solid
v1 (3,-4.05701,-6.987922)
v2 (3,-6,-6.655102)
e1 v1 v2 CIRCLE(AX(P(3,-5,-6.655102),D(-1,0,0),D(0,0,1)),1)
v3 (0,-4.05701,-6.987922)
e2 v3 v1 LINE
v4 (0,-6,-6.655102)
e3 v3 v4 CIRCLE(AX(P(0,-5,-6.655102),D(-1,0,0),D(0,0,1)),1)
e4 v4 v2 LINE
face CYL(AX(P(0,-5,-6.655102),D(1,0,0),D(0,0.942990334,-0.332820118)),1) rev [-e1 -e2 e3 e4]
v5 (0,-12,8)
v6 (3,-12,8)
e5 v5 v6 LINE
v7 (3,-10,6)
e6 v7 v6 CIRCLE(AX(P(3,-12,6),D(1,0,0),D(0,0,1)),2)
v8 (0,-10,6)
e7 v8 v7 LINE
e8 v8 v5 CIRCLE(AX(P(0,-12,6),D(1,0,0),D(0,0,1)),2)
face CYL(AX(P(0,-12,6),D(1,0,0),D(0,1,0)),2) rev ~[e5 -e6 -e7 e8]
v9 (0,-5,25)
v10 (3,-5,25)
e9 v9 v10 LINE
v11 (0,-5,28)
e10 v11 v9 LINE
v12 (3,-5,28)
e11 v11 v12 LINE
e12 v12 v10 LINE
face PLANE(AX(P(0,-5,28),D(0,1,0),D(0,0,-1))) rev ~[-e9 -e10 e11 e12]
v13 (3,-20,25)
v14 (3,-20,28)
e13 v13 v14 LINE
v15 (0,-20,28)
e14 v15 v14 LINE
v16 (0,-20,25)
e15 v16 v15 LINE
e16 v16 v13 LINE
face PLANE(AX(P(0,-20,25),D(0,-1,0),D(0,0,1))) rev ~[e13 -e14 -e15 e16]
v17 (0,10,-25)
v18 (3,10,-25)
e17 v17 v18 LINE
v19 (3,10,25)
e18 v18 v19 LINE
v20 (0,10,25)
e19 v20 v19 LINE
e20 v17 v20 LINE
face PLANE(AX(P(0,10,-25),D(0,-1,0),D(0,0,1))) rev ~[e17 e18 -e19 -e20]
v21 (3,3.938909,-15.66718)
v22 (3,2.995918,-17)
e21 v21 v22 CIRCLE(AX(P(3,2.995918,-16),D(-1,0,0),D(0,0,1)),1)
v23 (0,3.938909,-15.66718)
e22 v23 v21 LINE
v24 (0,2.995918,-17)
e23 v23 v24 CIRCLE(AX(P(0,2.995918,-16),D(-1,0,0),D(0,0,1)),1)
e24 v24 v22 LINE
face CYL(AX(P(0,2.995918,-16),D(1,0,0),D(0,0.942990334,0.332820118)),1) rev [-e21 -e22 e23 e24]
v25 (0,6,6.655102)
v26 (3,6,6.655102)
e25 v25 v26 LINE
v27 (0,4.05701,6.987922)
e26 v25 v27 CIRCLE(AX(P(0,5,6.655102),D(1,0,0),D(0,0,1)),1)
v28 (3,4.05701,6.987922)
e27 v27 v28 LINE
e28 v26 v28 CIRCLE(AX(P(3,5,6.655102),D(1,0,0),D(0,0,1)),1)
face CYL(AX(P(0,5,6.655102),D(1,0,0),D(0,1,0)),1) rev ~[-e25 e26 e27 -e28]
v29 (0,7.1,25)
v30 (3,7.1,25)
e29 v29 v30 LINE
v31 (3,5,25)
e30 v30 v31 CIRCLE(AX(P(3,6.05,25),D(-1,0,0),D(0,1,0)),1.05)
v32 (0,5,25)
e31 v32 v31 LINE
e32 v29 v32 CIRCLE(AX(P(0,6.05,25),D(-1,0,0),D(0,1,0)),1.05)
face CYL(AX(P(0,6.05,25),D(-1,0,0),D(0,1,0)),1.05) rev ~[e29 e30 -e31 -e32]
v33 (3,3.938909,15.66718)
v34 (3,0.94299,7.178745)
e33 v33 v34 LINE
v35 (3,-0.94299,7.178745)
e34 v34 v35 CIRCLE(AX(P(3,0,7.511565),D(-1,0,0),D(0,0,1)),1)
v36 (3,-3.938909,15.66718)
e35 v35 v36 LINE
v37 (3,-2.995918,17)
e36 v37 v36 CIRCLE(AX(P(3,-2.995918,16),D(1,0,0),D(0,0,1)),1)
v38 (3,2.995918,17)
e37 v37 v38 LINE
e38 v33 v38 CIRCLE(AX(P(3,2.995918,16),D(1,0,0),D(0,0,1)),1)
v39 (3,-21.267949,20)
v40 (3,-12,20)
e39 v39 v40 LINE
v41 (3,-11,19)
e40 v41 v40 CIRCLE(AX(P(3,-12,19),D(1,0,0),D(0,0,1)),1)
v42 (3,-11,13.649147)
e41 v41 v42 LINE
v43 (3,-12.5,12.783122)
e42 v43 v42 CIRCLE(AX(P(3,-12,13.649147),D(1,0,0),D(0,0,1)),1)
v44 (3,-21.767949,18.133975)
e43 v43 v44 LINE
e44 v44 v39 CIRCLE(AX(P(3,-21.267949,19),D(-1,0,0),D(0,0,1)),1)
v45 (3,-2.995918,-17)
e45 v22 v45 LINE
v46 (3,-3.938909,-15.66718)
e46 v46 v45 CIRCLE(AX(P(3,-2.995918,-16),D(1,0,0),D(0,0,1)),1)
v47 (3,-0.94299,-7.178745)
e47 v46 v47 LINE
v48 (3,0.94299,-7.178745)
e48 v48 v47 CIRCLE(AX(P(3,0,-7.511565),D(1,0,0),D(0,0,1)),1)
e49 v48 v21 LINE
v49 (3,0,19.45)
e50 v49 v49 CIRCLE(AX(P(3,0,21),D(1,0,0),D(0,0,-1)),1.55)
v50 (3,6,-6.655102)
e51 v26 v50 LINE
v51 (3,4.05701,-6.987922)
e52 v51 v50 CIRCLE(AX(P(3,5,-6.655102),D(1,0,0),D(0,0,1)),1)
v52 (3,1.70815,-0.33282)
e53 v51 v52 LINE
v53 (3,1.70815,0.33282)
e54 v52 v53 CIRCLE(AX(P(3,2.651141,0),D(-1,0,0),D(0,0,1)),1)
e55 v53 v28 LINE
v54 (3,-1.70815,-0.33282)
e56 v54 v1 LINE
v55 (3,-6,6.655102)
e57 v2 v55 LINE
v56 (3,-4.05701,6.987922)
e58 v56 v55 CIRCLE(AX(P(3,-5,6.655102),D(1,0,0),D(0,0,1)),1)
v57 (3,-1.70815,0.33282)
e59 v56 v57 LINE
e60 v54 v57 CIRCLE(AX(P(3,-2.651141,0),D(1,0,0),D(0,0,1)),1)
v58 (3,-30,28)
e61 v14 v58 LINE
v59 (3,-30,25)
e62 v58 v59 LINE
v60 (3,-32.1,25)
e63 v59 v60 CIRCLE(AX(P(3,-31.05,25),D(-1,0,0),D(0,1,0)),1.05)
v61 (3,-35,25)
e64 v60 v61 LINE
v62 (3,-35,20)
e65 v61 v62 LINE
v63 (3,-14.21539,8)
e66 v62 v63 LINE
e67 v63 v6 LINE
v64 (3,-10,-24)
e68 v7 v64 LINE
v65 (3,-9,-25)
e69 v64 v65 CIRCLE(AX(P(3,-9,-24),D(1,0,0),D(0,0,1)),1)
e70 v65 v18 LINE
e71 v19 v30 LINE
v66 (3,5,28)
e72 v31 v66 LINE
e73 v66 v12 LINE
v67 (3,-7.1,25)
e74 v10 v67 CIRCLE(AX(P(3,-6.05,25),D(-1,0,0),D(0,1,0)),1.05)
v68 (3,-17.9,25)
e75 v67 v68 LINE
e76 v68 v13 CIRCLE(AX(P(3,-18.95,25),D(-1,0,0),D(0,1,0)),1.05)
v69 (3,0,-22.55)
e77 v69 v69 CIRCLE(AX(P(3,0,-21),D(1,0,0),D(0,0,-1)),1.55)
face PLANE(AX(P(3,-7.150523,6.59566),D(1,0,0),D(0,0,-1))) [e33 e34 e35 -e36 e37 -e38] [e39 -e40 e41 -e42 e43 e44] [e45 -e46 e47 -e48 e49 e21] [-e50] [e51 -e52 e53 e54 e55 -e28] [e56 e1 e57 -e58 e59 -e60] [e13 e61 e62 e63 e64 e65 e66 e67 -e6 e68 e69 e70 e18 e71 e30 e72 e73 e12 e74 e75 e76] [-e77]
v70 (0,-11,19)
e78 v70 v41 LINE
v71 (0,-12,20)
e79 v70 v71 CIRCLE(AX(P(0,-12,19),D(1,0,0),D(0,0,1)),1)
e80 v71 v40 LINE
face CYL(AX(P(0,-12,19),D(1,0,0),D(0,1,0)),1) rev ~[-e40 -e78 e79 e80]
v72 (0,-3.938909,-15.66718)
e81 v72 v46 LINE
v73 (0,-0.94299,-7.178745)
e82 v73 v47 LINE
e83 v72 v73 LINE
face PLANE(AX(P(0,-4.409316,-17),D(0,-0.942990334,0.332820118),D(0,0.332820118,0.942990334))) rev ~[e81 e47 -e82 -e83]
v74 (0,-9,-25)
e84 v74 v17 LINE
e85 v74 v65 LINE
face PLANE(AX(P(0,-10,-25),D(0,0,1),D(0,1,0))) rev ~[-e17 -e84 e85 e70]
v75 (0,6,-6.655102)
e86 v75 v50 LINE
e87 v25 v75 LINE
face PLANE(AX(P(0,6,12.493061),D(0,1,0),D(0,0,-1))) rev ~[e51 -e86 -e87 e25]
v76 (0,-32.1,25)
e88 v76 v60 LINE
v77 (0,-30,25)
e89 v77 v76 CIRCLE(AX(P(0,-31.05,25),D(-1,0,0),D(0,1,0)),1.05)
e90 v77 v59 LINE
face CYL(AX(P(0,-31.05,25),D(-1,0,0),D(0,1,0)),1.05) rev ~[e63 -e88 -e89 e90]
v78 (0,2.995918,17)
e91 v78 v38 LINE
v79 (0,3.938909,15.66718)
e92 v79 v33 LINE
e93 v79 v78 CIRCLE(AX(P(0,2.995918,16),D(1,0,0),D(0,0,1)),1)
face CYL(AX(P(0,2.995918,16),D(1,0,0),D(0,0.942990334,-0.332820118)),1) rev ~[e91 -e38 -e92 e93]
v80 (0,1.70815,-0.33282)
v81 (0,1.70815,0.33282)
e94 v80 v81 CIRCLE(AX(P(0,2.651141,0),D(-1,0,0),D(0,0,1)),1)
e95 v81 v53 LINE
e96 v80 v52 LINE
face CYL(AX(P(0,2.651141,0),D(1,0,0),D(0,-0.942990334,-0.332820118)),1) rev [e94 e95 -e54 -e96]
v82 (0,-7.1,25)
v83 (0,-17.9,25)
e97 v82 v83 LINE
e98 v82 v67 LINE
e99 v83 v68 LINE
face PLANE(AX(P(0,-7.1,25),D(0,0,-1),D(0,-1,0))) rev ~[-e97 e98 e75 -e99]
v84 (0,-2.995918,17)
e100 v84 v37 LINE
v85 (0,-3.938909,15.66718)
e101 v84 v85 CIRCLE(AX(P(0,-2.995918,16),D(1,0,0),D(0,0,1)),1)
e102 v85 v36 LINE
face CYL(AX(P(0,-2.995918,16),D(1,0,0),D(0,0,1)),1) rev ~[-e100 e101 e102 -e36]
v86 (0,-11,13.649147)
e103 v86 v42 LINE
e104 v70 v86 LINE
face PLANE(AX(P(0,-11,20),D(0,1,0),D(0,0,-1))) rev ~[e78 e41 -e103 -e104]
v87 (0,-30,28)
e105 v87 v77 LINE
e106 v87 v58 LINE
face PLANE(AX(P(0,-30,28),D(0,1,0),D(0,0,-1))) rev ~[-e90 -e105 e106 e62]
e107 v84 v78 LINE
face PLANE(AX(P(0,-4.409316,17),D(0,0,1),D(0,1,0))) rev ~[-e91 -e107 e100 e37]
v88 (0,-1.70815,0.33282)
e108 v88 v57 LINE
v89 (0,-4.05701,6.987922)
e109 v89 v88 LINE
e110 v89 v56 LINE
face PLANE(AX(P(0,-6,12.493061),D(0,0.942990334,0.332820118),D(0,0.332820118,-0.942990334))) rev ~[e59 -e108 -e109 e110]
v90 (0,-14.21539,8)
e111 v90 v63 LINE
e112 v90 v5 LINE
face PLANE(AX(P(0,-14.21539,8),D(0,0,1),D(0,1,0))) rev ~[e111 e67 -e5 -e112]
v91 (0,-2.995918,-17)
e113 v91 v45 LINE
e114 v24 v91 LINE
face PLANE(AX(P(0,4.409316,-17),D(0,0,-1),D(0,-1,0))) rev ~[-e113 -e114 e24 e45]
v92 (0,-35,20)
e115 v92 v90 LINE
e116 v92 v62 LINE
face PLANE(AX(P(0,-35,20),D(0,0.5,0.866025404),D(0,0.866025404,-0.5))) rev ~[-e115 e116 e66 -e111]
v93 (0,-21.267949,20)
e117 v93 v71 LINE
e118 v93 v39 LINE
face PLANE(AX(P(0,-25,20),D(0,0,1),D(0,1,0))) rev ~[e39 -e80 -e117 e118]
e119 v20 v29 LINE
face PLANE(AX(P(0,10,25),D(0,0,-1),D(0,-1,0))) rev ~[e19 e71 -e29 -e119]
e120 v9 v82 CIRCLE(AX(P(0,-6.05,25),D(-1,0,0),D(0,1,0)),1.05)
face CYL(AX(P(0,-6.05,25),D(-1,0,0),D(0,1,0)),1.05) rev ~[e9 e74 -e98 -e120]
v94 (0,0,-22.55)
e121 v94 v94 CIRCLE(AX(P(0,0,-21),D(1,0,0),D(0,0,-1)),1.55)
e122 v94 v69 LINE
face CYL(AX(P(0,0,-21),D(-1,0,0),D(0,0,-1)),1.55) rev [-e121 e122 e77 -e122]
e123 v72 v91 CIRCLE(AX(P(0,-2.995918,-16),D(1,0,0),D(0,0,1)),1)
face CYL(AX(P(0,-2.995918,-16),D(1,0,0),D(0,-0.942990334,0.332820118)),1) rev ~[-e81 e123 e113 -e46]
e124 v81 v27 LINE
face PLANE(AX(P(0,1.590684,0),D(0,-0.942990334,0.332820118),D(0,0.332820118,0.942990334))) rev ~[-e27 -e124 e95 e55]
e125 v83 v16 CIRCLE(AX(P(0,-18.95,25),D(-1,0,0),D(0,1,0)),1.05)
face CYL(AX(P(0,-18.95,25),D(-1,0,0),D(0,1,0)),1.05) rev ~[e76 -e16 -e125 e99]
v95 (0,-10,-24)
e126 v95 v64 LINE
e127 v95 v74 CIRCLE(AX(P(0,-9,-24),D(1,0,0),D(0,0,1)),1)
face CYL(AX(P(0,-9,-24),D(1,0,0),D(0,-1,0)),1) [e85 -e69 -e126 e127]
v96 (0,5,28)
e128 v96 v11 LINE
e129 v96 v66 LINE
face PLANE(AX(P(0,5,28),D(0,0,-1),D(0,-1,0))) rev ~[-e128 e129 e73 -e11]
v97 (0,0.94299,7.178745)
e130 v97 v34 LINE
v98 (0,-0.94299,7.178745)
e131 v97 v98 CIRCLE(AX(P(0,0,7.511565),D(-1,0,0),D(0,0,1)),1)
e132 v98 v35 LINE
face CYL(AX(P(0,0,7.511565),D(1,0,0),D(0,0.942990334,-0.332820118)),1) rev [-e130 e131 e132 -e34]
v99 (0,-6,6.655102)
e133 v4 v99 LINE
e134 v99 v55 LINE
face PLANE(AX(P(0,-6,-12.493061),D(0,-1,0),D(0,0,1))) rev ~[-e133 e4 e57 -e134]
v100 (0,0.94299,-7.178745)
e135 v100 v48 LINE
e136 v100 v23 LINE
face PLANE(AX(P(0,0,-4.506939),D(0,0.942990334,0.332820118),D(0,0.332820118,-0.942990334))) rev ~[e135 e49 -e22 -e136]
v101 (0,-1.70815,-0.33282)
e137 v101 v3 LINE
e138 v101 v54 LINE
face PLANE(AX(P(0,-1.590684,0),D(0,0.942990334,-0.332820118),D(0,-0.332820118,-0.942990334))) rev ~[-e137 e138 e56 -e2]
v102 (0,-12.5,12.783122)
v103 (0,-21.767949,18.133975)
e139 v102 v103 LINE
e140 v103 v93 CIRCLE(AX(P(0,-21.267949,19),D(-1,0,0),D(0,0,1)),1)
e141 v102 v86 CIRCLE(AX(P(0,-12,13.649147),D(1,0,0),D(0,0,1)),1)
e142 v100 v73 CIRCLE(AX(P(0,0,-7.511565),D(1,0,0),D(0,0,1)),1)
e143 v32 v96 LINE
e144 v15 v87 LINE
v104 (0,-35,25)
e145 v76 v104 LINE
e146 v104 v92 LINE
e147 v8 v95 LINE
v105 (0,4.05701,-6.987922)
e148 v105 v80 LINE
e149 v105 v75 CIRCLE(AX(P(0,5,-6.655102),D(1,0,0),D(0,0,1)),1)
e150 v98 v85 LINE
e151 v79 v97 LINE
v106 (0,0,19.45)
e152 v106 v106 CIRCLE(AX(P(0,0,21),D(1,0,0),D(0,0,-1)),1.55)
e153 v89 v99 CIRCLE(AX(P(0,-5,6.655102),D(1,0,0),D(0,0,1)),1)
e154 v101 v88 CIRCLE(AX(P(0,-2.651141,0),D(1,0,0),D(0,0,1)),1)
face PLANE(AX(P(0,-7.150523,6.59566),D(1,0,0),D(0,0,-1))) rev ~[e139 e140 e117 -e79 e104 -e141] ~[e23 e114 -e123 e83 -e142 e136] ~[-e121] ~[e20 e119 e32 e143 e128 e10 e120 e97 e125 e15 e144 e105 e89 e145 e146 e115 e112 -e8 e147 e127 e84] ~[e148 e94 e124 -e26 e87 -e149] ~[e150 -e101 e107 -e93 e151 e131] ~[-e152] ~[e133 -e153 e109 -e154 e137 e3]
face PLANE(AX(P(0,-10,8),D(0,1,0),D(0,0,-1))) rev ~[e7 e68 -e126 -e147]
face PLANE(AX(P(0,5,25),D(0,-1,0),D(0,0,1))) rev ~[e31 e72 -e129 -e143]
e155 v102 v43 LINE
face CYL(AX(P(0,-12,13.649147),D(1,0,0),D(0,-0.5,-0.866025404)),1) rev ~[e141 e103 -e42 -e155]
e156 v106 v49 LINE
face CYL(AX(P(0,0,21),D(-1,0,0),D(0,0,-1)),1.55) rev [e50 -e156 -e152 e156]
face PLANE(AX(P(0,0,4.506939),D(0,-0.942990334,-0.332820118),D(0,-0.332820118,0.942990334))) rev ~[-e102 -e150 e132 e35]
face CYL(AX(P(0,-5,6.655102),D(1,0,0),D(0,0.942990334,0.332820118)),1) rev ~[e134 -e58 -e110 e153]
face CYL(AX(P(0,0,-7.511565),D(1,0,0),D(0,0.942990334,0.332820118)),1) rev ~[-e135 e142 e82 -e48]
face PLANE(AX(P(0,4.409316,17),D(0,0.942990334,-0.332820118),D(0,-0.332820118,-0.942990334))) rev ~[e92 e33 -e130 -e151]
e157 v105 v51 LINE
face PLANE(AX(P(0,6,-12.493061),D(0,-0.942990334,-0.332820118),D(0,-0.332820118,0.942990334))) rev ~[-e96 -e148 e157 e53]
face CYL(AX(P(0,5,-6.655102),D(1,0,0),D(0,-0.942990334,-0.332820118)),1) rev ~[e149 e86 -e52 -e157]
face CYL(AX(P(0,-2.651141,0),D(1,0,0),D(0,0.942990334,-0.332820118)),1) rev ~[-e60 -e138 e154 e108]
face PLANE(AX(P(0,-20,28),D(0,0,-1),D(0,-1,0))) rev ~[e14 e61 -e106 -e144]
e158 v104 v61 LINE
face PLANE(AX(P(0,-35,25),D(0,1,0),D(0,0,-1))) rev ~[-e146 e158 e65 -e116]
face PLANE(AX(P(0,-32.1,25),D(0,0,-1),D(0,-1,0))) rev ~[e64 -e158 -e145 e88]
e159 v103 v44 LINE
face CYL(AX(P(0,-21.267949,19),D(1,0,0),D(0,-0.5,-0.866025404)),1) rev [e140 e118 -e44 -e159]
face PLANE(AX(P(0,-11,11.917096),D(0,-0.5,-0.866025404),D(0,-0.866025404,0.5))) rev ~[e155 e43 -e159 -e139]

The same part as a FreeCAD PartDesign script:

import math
import FreeCAD as App
import Part
import Sketcher
from FreeCAD import Vector
Q = App.Units.Quantity


def edges_at(feature, points):
    """Names of the edges that pass closest to the given points."""
    edges = feature.Shape.Edges
    near = lambda p: min(range(len(edges)), key=lambda i: edges[i].distToShape(Part.Vertex(*p))[0])
    return sorted({f"Edge{near(p) + 1}" for p in points})


def add_polygon(sketch, points):
    """Adds a closed chain of lines whose ends are joined by coincident constraints."""
    first, n = sketch.GeometryCount, len(points)
    for a, b in zip(points, points[1:] + points[:1]):
        sketch.addGeometry(Part.LineSegment(App.Vector(*a, 0), App.Vector(*b, 0)), False)
    for i in range(n):
        sketch.addConstraint(Sketcher.Constraint("Coincident", first + i, 2, first + (i + 1) % n, 1))

doc = App.newDocument("Part")
body = doc.addObject("PartDesign::Body", "Body")

# Sketch on YZ plane
sketch1 = body.newObject("Sketcher::SketchObject", "Sketch")
sketch1.AttachmentSupport = (doc.getObject("YZ_Plane"), [""])
sketch1.MapMode = "FlatFace"
sketch1.addGeometry(Part.LineSegment(Vector(-10, 8, 0), Vector(-10, -25, 0)), False)  # 0
sketch1.addGeometry(Part.LineSegment(Vector(-10, -25, 0), Vector(10, -25, 0)), False)  # 1
sketch1.addGeometry(Part.LineSegment(Vector(10, -25, 0), Vector(10, 25, 0)), False)  # 2
sketch1.addGeometry(Part.LineSegment(Vector(10, 25, 0), Vector(7.1, 25, 0)), False)  # 3
sketch1.addGeometry(Part.ArcOfCircle(Part.Circle(Vector(6.05, 25, 0), Vector(0, 0, 1), 1.05), math.radians(180), math.radians(360)), False)  # 4
sketch1.addGeometry(Part.LineSegment(Vector(5, 25, 0), Vector(5, 28, 0)), False)  # 5
sketch1.addGeometry(Part.LineSegment(Vector(5, 28, 0), Vector(-5, 28, 0)), False)  # 6
sketch1.addGeometry(Part.LineSegment(Vector(-5, 28, 0), Vector(-5, 25, 0)), False)  # 7
sketch1.addGeometry(Part.ArcOfCircle(Part.Circle(Vector(-6.05, 25, 0), Vector(0, 0, 1), 1.05), math.radians(180), math.radians(360)), False)  # 8
sketch1.addGeometry(Part.LineSegment(Vector(-7.1, 25, 0), Vector(-17.9, 25, 0)), False)  # 9
sketch1.addGeometry(Part.ArcOfCircle(Part.Circle(Vector(-18.95, 25, 0), Vector(0, 0, 1), 1.05), math.radians(180), math.radians(360)), False)  # 10
sketch1.addGeometry(Part.LineSegment(Vector(-20, 25, 0), Vector(-20, 28, 0)), False)  # 11
sketch1.addGeometry(Part.LineSegment(Vector(-20, 28, 0), Vector(-30, 28, 0)), False)  # 12
sketch1.addGeometry(Part.LineSegment(Vector(-30, 28, 0), Vector(-30, 25, 0)), False)  # 13
sketch1.addGeometry(Part.ArcOfCircle(Part.Circle(Vector(-31.05, 25, 0), Vector(0, 0, 1), 1.05), math.radians(180), math.radians(360)), False)  # 14
sketch1.addGeometry(Part.LineSegment(Vector(-32.1, 25, 0), Vector(-35, 25, 0)), False)  # 15
sketch1.addGeometry(Part.LineSegment(Vector(-35, 25, 0), Vector(-35, 20, 0)), False)  # 16
sketch1.addGeometry(Part.LineSegment(Vector(-35, 20, 0), Vector(-14.21539, 8, 0)), False)  # 17
sketch1.addGeometry(Part.LineSegment(Vector(-14.21539, 8, 0), Vector(-10, 8, 0)), False)  # 18
add_polygon(sketch1, [(-11, 11.917096), (-25, 20), (-11, 20)])  # lines 19-21
sketch1.addGeometry(Part.Circle(Vector(0, 21, 0), Vector(0, 0, 1), 1.55), False)  # 22
add_polygon(sketch1, [(4.409316, 17), (0, 4.506939), (-4.409316, 17)])  # lines 23-25
add_polygon(sketch1, [(-1.590684, 0), (-6, -12.493061), (-6, 12.493061)])  # lines 26-28
add_polygon(sketch1, [(0, -4.506939), (4.409316, -17), (-4.409316, -17)])  # lines 29-31
add_polygon(sketch1, [(6, -12.493061), (1.590684, 0), (6, 12.493061)])  # lines 32-34
sketch1.addGeometry(Part.Circle(Vector(0, -21, 0), Vector(0, 0, 1), 1.55), False)  # 35
sketch1.addConstraint([
    Sketcher.Constraint("Coincident", 0, 2, 1, 1),
    Sketcher.Constraint("Coincident", 1, 2, 2, 1),
    Sketcher.Constraint("Coincident", 2, 2, 3, 1),
    Sketcher.Constraint("Coincident", 3, 2, 4, 2),
    Sketcher.Constraint("Tangent", 4, 1, 5, 1),
    Sketcher.Constraint("Coincident", 5, 2, 6, 1),
    Sketcher.Constraint("Coincident", 6, 2, 7, 1),
    Sketcher.Constraint("Tangent", 7, 2, 8, 2),
    Sketcher.Constraint("Coincident", 8, 1, 9, 1),
    Sketcher.Constraint("Coincident", 9, 2, 10, 2),
    Sketcher.Constraint("Tangent", 10, 1, 11, 1),
    Sketcher.Constraint("Coincident", 11, 2, 12, 1),
    Sketcher.Constraint("Coincident", 12, 2, 13, 1),
    Sketcher.Constraint("Tangent", 13, 2, 14, 2),
    Sketcher.Constraint("Coincident", 14, 1, 15, 1),
    Sketcher.Constraint("Coincident", 15, 2, 16, 1),
    Sketcher.Constraint("Coincident", 16, 2, 17, 1),
    Sketcher.Constraint("Coincident", 17, 2, 18, 1),
    Sketcher.Constraint("Coincident", 18, 2, 0, 1),
    Sketcher.Constraint("Vertical", 0),
    Sketcher.Constraint("Horizontal", 1),
    Sketcher.Constraint("Vertical", 2),
    Sketcher.Constraint("Horizontal", 3),
    Sketcher.Constraint("Vertical", 5),
    Sketcher.Constraint("Horizontal", 6),
    Sketcher.Constraint("Vertical", 7),
    Sketcher.Constraint("Horizontal", 9),
    Sketcher.Constraint("Vertical", 11),
    Sketcher.Constraint("Horizontal", 12),
    Sketcher.Constraint("Vertical", 13),
    Sketcher.Constraint("Horizontal", 15),
    Sketcher.Constraint("Vertical", 16),
    Sketcher.Constraint("Horizontal", 18),
    Sketcher.Constraint("Horizontal", 20),
    Sketcher.Constraint("Vertical", 21),
    Sketcher.Constraint("Horizontal", 25),
    Sketcher.Constraint("Vertical", 27),
    Sketcher.Constraint("Horizontal", 30),
    Sketcher.Constraint("Vertical", 34),
    Sketcher.Constraint("Equal", 4, 8),
    Sketcher.Constraint("Equal", 8, 10),
    Sketcher.Constraint("Equal", 10, 14),
    Sketcher.Constraint("Equal", 22, 35),
    Sketcher.Constraint("Symmetric", 22, 3, 35, 3, -1, 1),
    Sketcher.Constraint("Symmetric", 0, 2, 2, 2, -1, 1),
    Sketcher.Constraint("Symmetric", 24, 2, 29, 2, -1, 1),
    Sketcher.Constraint("Symmetric", 23, 2, 31, 2, -1, 1),
    Sketcher.Constraint("Symmetric", 28, 2, 32, 2, -1, 1),
    Sketcher.Constraint("Symmetric", 26, 2, 33, 2, -1, 1),
    Sketcher.Constraint("Symmetric", 4, 3, 8, 3, -2),
    Sketcher.Constraint("PointOnObject", 22, 3, -2),
    Sketcher.Constraint("PointOnObject", 23, 2, -2),
    Sketcher.Constraint("PointOnObject", 28, 2, -1),
    Sketcher.Constraint("Parallel", 17, 19),
    Sketcher.Constraint("Parallel", 23, 26),
    Sketcher.Constraint("Parallel", 24, 28),
    Sketcher.Constraint("Parallel", 26, 31),
    Sketcher.Constraint("Parallel", 29, 32),
    Sketcher.Constraint("Horizontal", 8, 3, 10, 3),
    Sketcher.Constraint("Horizontal", 10, 3, 14, 3),
    Sketcher.Constraint("Horizontal", 14, 3, 2, 2),
    Sketcher.Constraint("Horizontal", 7, 2, 8, 1),
    Sketcher.Constraint("Horizontal", 6, 2, 11, 2),
    Sketcher.Constraint("Horizontal", 13, 2, 14, 1),
    Sketcher.Constraint("Horizontal", 16, 2, 19, 2),
    Sketcher.Constraint("Horizontal", 27, 2, 33, 2),
    Sketcher.Constraint("Equal", 6, 12),
    Sketcher.Constraint("Equal", 3, 15),
    Sketcher.Constraint("Equal", 24, 26),
    Sketcher.Constraint("Diameter", 22, 3.1),
    Sketcher.Constraint("DistanceX", 1, 1, 1, 2, 20.0),
    Sketcher.Constraint("DistanceX", 6, 2, 6, 1, 10.0),
    Sketcher.Constraint("DistanceX", 20, 1, 20, 2, 14.0),
    Sketcher.Constraint("DistanceY", 0, 2, 0, 1, 33.0),
    Sketcher.Constraint("DistanceY", 2, 1, 2, 2, 50.0),
    Sketcher.Constraint("DistanceY", 5, 1, 5, 2, 3.0),
    Sketcher.Constraint("DistanceY", 16, 2, 16, 1, 5.0),
    Sketcher.Constraint("Angle", 17, Q("-30 deg")),
    Sketcher.Constraint("Radius", 4, 1.05),
    Sketcher.Constraint("DistanceX", 9, 2, 9, 1, 10.8),
    Sketcher.Constraint("DistanceY", -1, 1, 22, 3, 21.0),
    Sketcher.Constraint("DistanceX", 19, 2, -1, 1, 25.0),
    Sketcher.Constraint("DistanceY", -1, 1, 24, 2, 17.0),
    Sketcher.Constraint("DistanceX", 26, 2, -1, 1, 6.0),
    Sketcher.Constraint("DistanceX", 25, 1, 25, 2, 8.818631),
    Sketcher.Constraint("DistanceY", 27, 1, 27, 2, 24.986122),
])
pad1 = body.newObject("PartDesign::Pad", "Pad")
pad1.Profile = sketch1
pad1.Length = 3
doc.recompute()

fillet = body.newObject("PartDesign::Fillet", "Fillet")
fillet.Base = (pad1, edges_at(pad1, [
    (1.5, -11, 20),
    (1.5, -25, 20),
    (1.5, -11, 11.917),
    (1.5, 6, -12.493),
    (1.5, 6, 12.493),
    (1.5, 1.591, 0),
    (1.5, -4.409, 17),
    (1.5, 0, 4.507),
    (1.5, 4.409, 17),
    (1.5, -4.409, -17),
    (1.5, 4.409, -17),
    (1.5, 0, -4.507),
    (1.5, -6, 12.493),
    (1.5, -6, -12.493),
    (1.5, -1.591, 0),
    (1.5, -10, -25),
]))
fillet.Radius = 1
doc.recompute()

fillet2 = body.newObject("PartDesign::Fillet", "Fillet001")
fillet2.Base = (fillet, edges_at(fillet, [(1.5, -10, 8)]))
fillet2.Radius = 2

doc.recompute()
